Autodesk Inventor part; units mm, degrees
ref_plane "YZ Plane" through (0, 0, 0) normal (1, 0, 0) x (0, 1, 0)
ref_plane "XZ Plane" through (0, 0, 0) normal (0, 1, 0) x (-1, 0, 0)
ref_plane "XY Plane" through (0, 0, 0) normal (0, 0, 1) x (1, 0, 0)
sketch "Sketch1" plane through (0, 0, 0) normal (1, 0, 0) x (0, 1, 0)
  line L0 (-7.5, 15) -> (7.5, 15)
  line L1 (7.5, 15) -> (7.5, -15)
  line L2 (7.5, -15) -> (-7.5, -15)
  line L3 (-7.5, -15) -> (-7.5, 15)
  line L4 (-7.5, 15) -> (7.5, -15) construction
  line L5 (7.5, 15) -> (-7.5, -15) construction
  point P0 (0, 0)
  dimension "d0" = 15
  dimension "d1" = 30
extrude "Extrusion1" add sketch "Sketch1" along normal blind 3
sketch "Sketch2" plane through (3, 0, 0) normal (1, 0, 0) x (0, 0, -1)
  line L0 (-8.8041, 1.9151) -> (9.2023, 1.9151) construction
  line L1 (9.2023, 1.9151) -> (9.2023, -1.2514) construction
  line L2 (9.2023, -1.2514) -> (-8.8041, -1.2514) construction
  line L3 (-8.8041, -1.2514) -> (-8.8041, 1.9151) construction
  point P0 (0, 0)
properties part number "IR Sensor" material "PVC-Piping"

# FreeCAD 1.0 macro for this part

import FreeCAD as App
import Part
import Sketcher
from FreeCAD import Vector


def add_polygon(sketch, points):
    """Adds a closed chain of lines whose ends are joined by coincident constraints."""
    first, n = sketch.GeometryCount, len(points)
    for a, b in zip(points, points[1:] + points[:1]):
        sketch.addGeometry(Part.LineSegment(App.Vector(*a, 0), App.Vector(*b, 0)), False)
    for i in range(n):
        sketch.addConstraint(Sketcher.Constraint("Coincident", first + i, 2, first + (i + 1) % n, 1))

doc = App.newDocument("Part")
body = doc.addObject("PartDesign::Body", "Body")

# Sketch on YZ plane
sketch1 = body.newObject("Sketcher::SketchObject", "Sketch")
sketch1.AttachmentSupport = (doc.getObject("YZ_Plane"), [""])
sketch1.MapMode = "FlatFace"
add_polygon(sketch1, [(7.5, 15), (-7.5, 15), (-7.5, -15), (7.5, -15)])  # lines 0-3
sketch1.addConstraint(Sketcher.Constraint("Horizontal", 0))
sketch1.addConstraint(Sketcher.Constraint("Vertical", 1))
sketch1.addConstraint(Sketcher.Constraint("Horizontal", 2))
sketch1.addConstraint(Sketcher.Constraint("Vertical", 3))
sketch1.addConstraint(Sketcher.Constraint("Symmetric", 0, 2, 2, 2, -1, 1))
sketch1.addConstraint(Sketcher.Constraint("DistanceX", 0, 2, 0, 1, 15.0))
sketch1.addConstraint(Sketcher.Constraint("DistanceY", 1, 2, 1, 1, 30.0))
pad1 = body.newObject("PartDesign::Pad", "Pad")
pad1.Profile = sketch1
pad1.Length = 3

doc.recompute()
